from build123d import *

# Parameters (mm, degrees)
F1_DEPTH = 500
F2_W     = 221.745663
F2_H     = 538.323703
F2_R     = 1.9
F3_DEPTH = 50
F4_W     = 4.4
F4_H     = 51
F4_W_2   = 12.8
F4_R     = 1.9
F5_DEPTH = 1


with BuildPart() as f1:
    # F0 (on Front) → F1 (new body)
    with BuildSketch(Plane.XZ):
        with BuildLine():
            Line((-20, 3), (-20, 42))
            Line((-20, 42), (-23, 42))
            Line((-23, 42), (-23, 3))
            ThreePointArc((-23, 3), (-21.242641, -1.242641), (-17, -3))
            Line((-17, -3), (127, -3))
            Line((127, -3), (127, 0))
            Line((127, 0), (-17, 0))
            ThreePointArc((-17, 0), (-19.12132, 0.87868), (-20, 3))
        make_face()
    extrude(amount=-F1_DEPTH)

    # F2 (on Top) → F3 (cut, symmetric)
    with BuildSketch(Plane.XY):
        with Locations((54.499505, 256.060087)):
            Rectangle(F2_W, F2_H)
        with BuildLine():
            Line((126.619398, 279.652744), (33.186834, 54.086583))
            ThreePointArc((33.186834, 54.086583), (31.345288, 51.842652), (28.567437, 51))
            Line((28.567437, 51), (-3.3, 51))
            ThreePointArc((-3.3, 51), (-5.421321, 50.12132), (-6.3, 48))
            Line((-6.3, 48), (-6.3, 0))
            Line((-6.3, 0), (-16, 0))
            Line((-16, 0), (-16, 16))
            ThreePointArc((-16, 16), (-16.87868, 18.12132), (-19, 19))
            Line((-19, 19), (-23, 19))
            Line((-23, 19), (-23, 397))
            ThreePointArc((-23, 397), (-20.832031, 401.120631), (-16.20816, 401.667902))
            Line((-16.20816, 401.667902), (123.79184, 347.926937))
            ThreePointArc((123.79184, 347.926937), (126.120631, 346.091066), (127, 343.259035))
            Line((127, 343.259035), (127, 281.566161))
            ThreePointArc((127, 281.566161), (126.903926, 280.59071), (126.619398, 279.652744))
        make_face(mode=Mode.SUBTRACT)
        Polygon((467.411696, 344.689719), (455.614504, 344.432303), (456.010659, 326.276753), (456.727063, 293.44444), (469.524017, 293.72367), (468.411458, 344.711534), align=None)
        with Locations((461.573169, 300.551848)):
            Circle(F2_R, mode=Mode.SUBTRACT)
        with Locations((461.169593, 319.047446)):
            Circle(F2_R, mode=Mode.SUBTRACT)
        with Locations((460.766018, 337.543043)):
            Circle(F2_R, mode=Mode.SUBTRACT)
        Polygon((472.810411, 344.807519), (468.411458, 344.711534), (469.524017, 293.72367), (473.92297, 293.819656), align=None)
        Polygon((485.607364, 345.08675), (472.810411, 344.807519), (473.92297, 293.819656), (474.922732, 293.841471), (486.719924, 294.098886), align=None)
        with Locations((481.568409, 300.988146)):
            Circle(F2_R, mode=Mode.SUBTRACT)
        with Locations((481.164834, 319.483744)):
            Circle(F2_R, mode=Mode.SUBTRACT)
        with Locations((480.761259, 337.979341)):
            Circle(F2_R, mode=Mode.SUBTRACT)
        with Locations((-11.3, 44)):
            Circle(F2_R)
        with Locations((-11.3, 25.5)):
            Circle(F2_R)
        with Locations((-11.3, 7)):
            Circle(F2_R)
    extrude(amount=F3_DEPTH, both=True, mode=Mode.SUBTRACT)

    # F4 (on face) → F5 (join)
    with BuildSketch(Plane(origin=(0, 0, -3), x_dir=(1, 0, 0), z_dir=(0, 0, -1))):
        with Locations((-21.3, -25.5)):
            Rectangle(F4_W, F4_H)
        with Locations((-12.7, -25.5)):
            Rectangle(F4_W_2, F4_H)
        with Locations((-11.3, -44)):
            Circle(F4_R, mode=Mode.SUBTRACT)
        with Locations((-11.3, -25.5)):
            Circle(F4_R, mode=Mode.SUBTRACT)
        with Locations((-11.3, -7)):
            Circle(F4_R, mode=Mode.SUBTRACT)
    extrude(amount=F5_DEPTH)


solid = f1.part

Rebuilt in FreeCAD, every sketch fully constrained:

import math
import FreeCAD as App
import Part
import Sketcher
from FreeCAD import Vector
Q = App.Units.Quantity


def add_polygon(sketch, points):
    """Adds a closed chain of lines whose ends are joined by coincident constraints."""
    first, n = sketch.GeometryCount, len(points)
    for a, b in zip(points, points[1:] + points[:1]):
        sketch.addGeometry(Part.LineSegment(App.Vector(*a, 0), App.Vector(*b, 0)), False)
    for i in range(n):
        sketch.addConstraint(Sketcher.Constraint("Coincident", first + i, 2, first + (i + 1) % n, 1))

doc = App.newDocument("Part")
params = doc.addObject("Spreadsheet::Sheet", "Params")
for row, (alias, value) in enumerate([
    ("sketch1_radius", "5.999999 mm"),
    ("sketch1_radius2", "3.000001 mm"),
    ("sketch1_width", "144 mm"),
    ("sketch1_height", "39 mm"),
    ("pad1_length", "500 mm"),
    ("sketch2_radius", "4.999999 mm"),
    ("sketch2_radius2", "2.999999 mm"),
    ("sketch2_diameter", "3.8 mm"),
    ("sketch2_width", "4 mm"),
    ("sketch2_height", "48 mm"),
    ("pocket1_length", "100 mm"),
    ("sketch3_diameter", "3.8 mm"),
    ("sketch3_height", "51 mm"),
    ("sketch3_width", "17.2 mm"),
    ("pad2_length", "1 mm"),
], start=1):
    params.set(f"A{row}", alias)
    params.set(f"B{row}", "=" + value)
    params.setAlias(f"B{row}", alias)

body = doc.addObject("PartDesign::Body", "Body")

sketch1 = doc.addObject("Sketcher::SketchObject", "Sketch")
body.addObject(sketch1)
sketch1.AttachmentSupport = (doc.XZ_Plane, [""])
sketch1.MapMode = "FlatFace"
sketch1.addGeometry([
    Part.LineSegment(Vector(-20, 3, 0), Vector(-20, 42, 0)),
    Part.LineSegment(Vector(-20, 42, 0), Vector(-23, 42, 0)),
    Part.LineSegment(Vector(-23, 42, 0), Vector(-23, 3, 0)),
    Part.ArcOfCircle(Part.Circle(Vector(-17, 3, 0), Vector(0, 0, 1), 6), math.radians(180), math.radians(270)),
    Part.LineSegment(Vector(-17, -3, 0), Vector(127, -3, 0)),
    Part.LineSegment(Vector(127, -3, 0), Vector(127, 0, 0)),
    Part.LineSegment(Vector(127, 0, 0), Vector(-17, 0, 0)),
    Part.ArcOfCircle(Part.Circle(Vector(-17, 3, 0), Vector(0, 0, 1), 3), math.radians(-180), math.radians(-90)),
], False)
sketch1.addConstraint([
    Sketcher.Constraint("Coincident", 0, 2, 1, 1),
    Sketcher.Constraint("Coincident", 1, 2, 2, 1),
    Sketcher.Constraint("Tangent", 2, 2, 3, 1),
    Sketcher.Constraint("Tangent", 3, 2, 4, 1),
    Sketcher.Constraint("Coincident", 4, 2, 5, 1),
    Sketcher.Constraint("Coincident", 5, 2, 6, 1),
    Sketcher.Constraint("Tangent", 6, 2, 7, 2),
    Sketcher.Constraint("Tangent", 7, 1, 0, 1),
    Sketcher.Constraint("Vertical", 0),
    Sketcher.Constraint("Horizontal", 1),
    Sketcher.Constraint("Vertical", 2),
    Sketcher.Constraint("Horizontal", 4),
    Sketcher.Constraint("Vertical", 5),
    Sketcher.Constraint("Horizontal", 6),
    Sketcher.Constraint("Coincident", 7, 3, 3, 3),
    Sketcher.Constraint("PointOnObject", 5, 2, -1),
    Sketcher.Constraint("Radius", 3, 5.999999),
    Sketcher.Constraint("Radius", 7, 3.000001),
    Sketcher.Constraint("DistanceX", 4, 1, 4, 2, 144.0),
    Sketcher.Constraint("DistanceY", 0, 1, 0, 2, 39.0),
    Sketcher.Constraint("DistanceX", 3, 3, -1, 1, 17.000001),
])
sketch1.setExpression("Constraints[16]", "Params.sketch1_radius")
sketch1.setExpression("Constraints[17]", "Params.sketch1_radius2")
sketch1.setExpression("Constraints[18]", "Params.sketch1_width")
sketch1.setExpression("Constraints[19]", "Params.sketch1_height")
pad1 = doc.addObject("PartDesign::Pad", "Pad")
body.addObject(pad1)
pad1.Profile = sketch1
pad1.setExpression("Length", "Params.pad1_length")
pad1.Reversed = True

sketch2 = doc.addObject("Sketcher::SketchObject", "Sketch001")
body.addObject(sketch2)
sketch2.AttachmentSupport = (doc.XY_Plane, [""])
sketch2.MapMode = "FlatFace"
add_polygon(sketch2, [(-56.4, 525.2), (-56.4, -13.1), (165.4, -13.1), (165.4, 525.2)])
sketch2.addGeometry(Part.ArcOfCircle(Part.Circle(Vector(122, 281.6, 0), Vector(0, 0, 1), 5), math.radians(-22), math.radians(0)), False)
sketch2.addGeometry(Part.LineSegment(Vector(126.6, 279.7, 0), Vector(33.2, 54.1, 0)), False)
sketch2.addGeometry(Part.ArcOfCircle(Part.Circle(Vector(28.6, 56, 0), Vector(0, 0, 1), 5), math.radians(-90), math.radians(-22)), False)
sketch2.addGeometry(Part.LineSegment(Vector(28.6, 51, 0), Vector(-3.3, 51, 0)), False)
sketch2.addGeometry(Part.ArcOfCircle(Part.Circle(Vector(-3.3, 48, 0), Vector(0, 0, 1), 3), math.radians(90), math.radians(180)), False)
sketch2.addGeometry(Part.LineSegment(Vector(-6.3, 48, 0), Vector(-6.3, 0, 0)), False)
sketch2.addGeometry(Part.LineSegment(Vector(-6.3, 0, 0), Vector(-16, 0, 0)), False)
sketch2.addGeometry(Part.LineSegment(Vector(-16, 0, 0), Vector(-16, 16, 0)), False)
sketch2.addGeometry(Part.ArcOfCircle(Part.Circle(Vector(-19, 16, 0), Vector(0, 0, 1), 3), math.radians(0), math.radians(90)), False)
sketch2.addGeometry(Part.LineSegment(Vector(-19, 19, 0), Vector(-23, 19, 0)), False)
sketch2.addGeometry(Part.LineSegment(Vector(-23, 19, 0), Vector(-23, 397, 0)), False)
sketch2.addGeometry(Part.ArcOfCircle(Part.Circle(Vector(-18, 397, 0), Vector(0, 0, 1), 5), math.radians(69), math.radians(180)), False)
sketch2.addGeometry(Part.LineSegment(Vector(-16.2, 401.7, 0), Vector(123.8, 347.9, 0)), False)
sketch2.addGeometry(Part.ArcOfCircle(Part.Circle(Vector(122, 343.3, 0), Vector(0, 0, 1), 5), math.radians(0), math.radians(69)), False)
sketch2.addGeometry(Part.LineSegment(Vector(127, 343.3, 0), Vector(127, 281.6, 0)), False)
add_polygon(sketch2, [(467.4, 344.7), (455.6, 344.4), (456, 326.3), (456.7, 293.4), (469.5, 293.7), (473.9, 293.8), (474.9, 293.8), (486.7, 294.1), (485.6, 345.1), (472.8, 344.8), (468.4, 344.7)])
sketch2.addGeometry(Part.Circle(Vector(461.6, 300.6, 0), Vector(0, 0, 1), 1.9), False)
sketch2.addGeometry(Part.Circle(Vector(461.2, 319, 0), Vector(0, 0, 1), 1.9), False)
sketch2.addGeometry(Part.Circle(Vector(481.6, 301, 0), Vector(0, 0, 1), 1.9), False)
sketch2.addGeometry(Part.Circle(Vector(460.8, 337.5, 0), Vector(0, 0, 1), 1.9), False)
sketch2.addGeometry(Part.Circle(Vector(481.2, 319.5, 0), Vector(0, 0, 1), 1.9), False)
sketch2.addGeometry(Part.Circle(Vector(480.8, 338, 0), Vector(0, 0, 1), 1.9), False)
sketch2.addGeometry(Part.Circle(Vector(-11.3, 44, 0), Vector(0, 0, 1), 1.9), False)
sketch2.addGeometry(Part.Circle(Vector(-11.3, 25.5, 0), Vector(0, 0, 1), 1.9), False)
sketch2.addGeometry(Part.Circle(Vector(-11.3, 7, 0), Vector(0, 0, 1), 1.9), False)
sketch2.addConstraint([
    Sketcher.Constraint("Tangent", 4, 1, 5, 1),
    Sketcher.Constraint("Tangent", 5, 2, 6, 2),
    Sketcher.Constraint("Tangent", 6, 1, 7, 1),
    Sketcher.Constraint("Tangent", 7, 2, 8, 1),
    Sketcher.Constraint("Tangent", 8, 2, 9, 1),
    Sketcher.Constraint("Coincident", 9, 2, 10, 1),
    Sketcher.Constraint("Coincident", 10, 2, 11, 1),
    Sketcher.Constraint("Tangent", 11, 2, 12, 1),
    Sketcher.Constraint("Tangent", 12, 2, 13, 1),
    Sketcher.Constraint("Coincident", 13, 2, 14, 1),
    Sketcher.Constraint("Tangent", 14, 2, 15, 2),
    Sketcher.Constraint("Tangent", 15, 1, 16, 1),
    Sketcher.Constraint("Tangent", 16, 2, 17, 2),
    Sketcher.Constraint("Tangent", 17, 1, 18, 1),
    Sketcher.Constraint("Tangent", 18, 2, 4, 2),
    Sketcher.Constraint("Vertical", 0),
    Sketcher.Constraint("Horizontal", 1),
    Sketcher.Constraint("Vertical", 2),
    Sketcher.Constraint("Horizontal", 3),
    Sketcher.Constraint("Horizontal", 7),
    Sketcher.Constraint("Vertical", 9),
    Sketcher.Constraint("Horizontal", 10),
    Sketcher.Constraint("Vertical", 11),
    Sketcher.Constraint("Horizontal", 13),
    Sketcher.Constraint("Vertical", 14),
    Sketcher.Constraint("Vertical", 18),
    Sketcher.Constraint("Equal", 8, 12),
    Sketcher.Constraint("Equal", 6, 15),
    Sketcher.Constraint("Equal", 15, 17),
    Sketcher.Constraint("Equal", 30, 31),
    Sketcher.Constraint("Equal", 31, 32),
    Sketcher.Constraint("Equal", 32, 33),
    Sketcher.Constraint("Equal", 33, 34),
    Sketcher.Constraint("Equal", 34, 35),
    Sketcher.Constraint("Equal", 35, 36),
    Sketcher.Constraint("Equal", 36, 37),
    Sketcher.Constraint("Equal", 37, 38),
    Sketcher.Constraint("PointOnObject", 9, 2, -1),
    Sketcher.Constraint("Perpendicular", 19, 20),
    Sketcher.Constraint("Parallel", 20, 21),
    Sketcher.Constraint("Perpendicular", 21, 22),
    Sketcher.Constraint("Parallel", 22, 23),
    Sketcher.Constraint("Parallel", 23, 24),
    Sketcher.Constraint("Parallel", 24, 25),
    Sketcher.Constraint("Perpendicular", 25, 26),
    Sketcher.Constraint("Perpendicular", 26, 27),
    Sketcher.Constraint("Parallel", 27, 28),
    Sketcher.Constraint("Parallel", 28, 29),
    Sketcher.Constraint("Vertical", 36, 3, 37, 3),
    Sketcher.Constraint("Vertical", 37, 3, 38, 3),
    Sketcher.Constraint("Equal", 19, 25),
    Sketcher.Constraint("Equal", 22, 27),
    Sketcher.Constraint("Equal", 23, 28),
    Sketcher.Constraint("Radius", 6, 4.999999),
    Sketcher.Constraint("Radius", 8, 2.999999),
    Sketcher.Constraint("Diameter", 30, 3.8),
    Sketcher.Constraint("DistanceX", 13, 2, 13, 1, 4.0),
    Sketcher.Constraint("DistanceY", 9, 2, 9, 1, 48.0),
    Sketcher.Constraint("DistanceY", 11, 1, 11, 2, 16.0),
    Sketcher.Constraint("DistanceY", 14, 1, 14, 2, 378.0),
    Sketcher.Constraint("Angle", 16, Q("-21 deg")),
    Sketcher.Constraint("Distance", 24, 1.0),
    Sketcher.Constraint("Distance", 26, 51.000001),
    Sketcher.Constraint("DistanceX", 10, 2, 10, 1, 9.7),
    Sketcher.Constraint("DistanceX", 12, 3, -1, 1, 19.000001),
    Sketcher.Constraint("DistanceX", -1, 1, 17, 3, 122.0),
    Sketcher.Constraint("DistanceY", -1, 1, 36, 3, 44.0),
    Sketcher.Constraint("DistanceY", -1, 1, 38, 3, 7.0),
    Sketcher.Constraint("Angle", 5, Q("-112.5 deg")),
    Sketcher.Constraint("DistanceX", 36, 3, 8, 3, 7.999999),
    Sketcher.Constraint("Distance", 19, 11.8),
    Sketcher.Constraint("Distance", 22, 12.8),
    Sketcher.Constraint("Distance", 23, 4.4),
    Sketcher.Constraint("DistanceY", -1, 1, 37, 3, 25.5),
    Sketcher.Constraint("Angle", 19, Q("-178.749998 deg")),
    Sketcher.Constraint("Radius", 4, 5.000033),
    Sketcher.Constraint("DistanceX", 4, 3, 30, 3, 339.573202),
    Sketcher.Constraint("DistanceY", 32, 3, 31, 3, 18.0593),
    Sketcher.Constraint("DistanceY", 32, 3, 34, 3, 18.495598),
    Sketcher.Constraint("DistanceY", 34, 3, 33, 3, 18.059299),
    Sketcher.Constraint("DistanceX", 6, 3, 1, 2, 136.804899),
    Sketcher.Constraint("DistanceX", 30, 3, 23, 2, 12.349801),
    Sketcher.Constraint("DistanceX", 28, 2, 35, 3, 12.349801),
    Sketcher.Constraint("Distance", 20, 18.159872),
    Sketcher.Constraint("DistanceX", 1, 1, 1, 2, 221.745663),
    Sketcher.Constraint("DistanceX", 7, 2, 7, 1, 31.867437),
    Sketcher.Constraint("DistanceY", 0, 2, 0, 1, 538.323703),
    Sketcher.Constraint("DistanceY", -1, 1, 30, 3, 300.551848),
    Sketcher.Constraint("DistanceX", -1, 1, 32, 3, 481.568409),
    Sketcher.Constraint("DistanceY", -1, 1, 35, 3, 337.979341),
    Sketcher.Constraint("DistanceY", -1, 1, 2, 2, 525.221938),
    Sketcher.Constraint("DistanceY", -1, 1, 21, 2, 293.44444),
    Sketcher.Constraint("DistanceY", 31, 3, 17, 3, 24.211589),
    Sketcher.Constraint("DistanceX", 33, 3, 30, 3, 0.807151),
    Sketcher.Constraint("DistanceX", 31, 3, 34, 3, 19.995241),
    Sketcher.Constraint("DistanceX", 19, 2, 31, 3, 5.555089),
])
sketch2.setExpression("Constraints[68]", "Params.sketch2_radius")
sketch2.setExpression("Constraints[69]", "Params.sketch2_radius2")
sketch2.setExpression("Constraints[70]", "Params.sketch2_diameter")
sketch2.setExpression("Constraints[71]", "Params.sketch2_width")
sketch2.setExpression("Constraints[72]", "Params.sketch2_height")
pocket1 = doc.addObject("PartDesign::Pocket", "Pocket")
body.addObject(pocket1)
pocket1.Profile = sketch2
pocket1.setExpression("Length", "Params.pocket1_length")
pocket1.Midplane = True

sketch3 = doc.addObject("Sketcher::SketchObject", "Sketch002")
body.addObject(sketch3)
sketch3.AttachmentSupport = (doc.XY_Plane, [""])
sketch3.MapMode = "FlatFace"
sketch3.AttachmentOffset = App.Placement(Vector(0, 0, -3), App.Rotation())
add_polygon(sketch3, [(-23.5, 0), (-23.5, 51), (-6.3, 51), (-6.3, 0)])
sketch3.addGeometry(Part.Circle(Vector(-11.3, 44, 0), Vector(0, 0, 1), 1.9), False)
sketch3.addGeometry(Part.Circle(Vector(-11.3, 25.5, 0), Vector(0, 0, 1), 1.9), False)
sketch3.addGeometry(Part.Circle(Vector(-11.3, 7, 0), Vector(0, 0, 1), 1.9), False)
sketch3.addConstraint([
    Sketcher.Constraint("Vertical", 0),
    Sketcher.Constraint("Horizontal", 1),
    Sketcher.Constraint("Vertical", 2),
    Sketcher.Constraint("Horizontal", 3),
    Sketcher.Constraint("Equal", 4, 5),
    Sketcher.Constraint("Equal", 5, 6),
    Sketcher.Constraint("PointOnObject", 2, 2, -1),
    Sketcher.Constraint("Vertical", 4, 3, 5, 3),
    Sketcher.Constraint("Vertical", 5, 3, 6, 3),
    Sketcher.Constraint("Diameter", 4, 3.8),
    Sketcher.Constraint("DistanceY", 0, 1, 0, 2, 51.0),
    Sketcher.Constraint("DistanceX", 1, 1, 1, 2, 17.2),
    Sketcher.Constraint("DistanceY", -1, 1, 4, 3, 44.0),
    Sketcher.Constraint("DistanceY", -1, 1, 6, 3, 7.0),
    Sketcher.Constraint("DistanceX", 4, 3, 1, 2, 5.0),
    Sketcher.Constraint("DistanceX", 4, 3, -1, 1, 11.3),
    Sketcher.Constraint("DistanceY", -1, 1, 5, 3, 25.5),
])
sketch3.setExpression("Constraints[13]", "Params.sketch3_diameter")
sketch3.setExpression("Constraints[14]", "Params.sketch3_height")
sketch3.setExpression("Constraints[15]", "Params.sketch3_width")
pad2 = doc.addObject("PartDesign::Pad", "Pad001")
body.addObject(pad2)
pad2.Profile = sketch3
pad2.setExpression("Length", "Params.pad2_length")
pad2.Reversed = True

doc.recompute()
